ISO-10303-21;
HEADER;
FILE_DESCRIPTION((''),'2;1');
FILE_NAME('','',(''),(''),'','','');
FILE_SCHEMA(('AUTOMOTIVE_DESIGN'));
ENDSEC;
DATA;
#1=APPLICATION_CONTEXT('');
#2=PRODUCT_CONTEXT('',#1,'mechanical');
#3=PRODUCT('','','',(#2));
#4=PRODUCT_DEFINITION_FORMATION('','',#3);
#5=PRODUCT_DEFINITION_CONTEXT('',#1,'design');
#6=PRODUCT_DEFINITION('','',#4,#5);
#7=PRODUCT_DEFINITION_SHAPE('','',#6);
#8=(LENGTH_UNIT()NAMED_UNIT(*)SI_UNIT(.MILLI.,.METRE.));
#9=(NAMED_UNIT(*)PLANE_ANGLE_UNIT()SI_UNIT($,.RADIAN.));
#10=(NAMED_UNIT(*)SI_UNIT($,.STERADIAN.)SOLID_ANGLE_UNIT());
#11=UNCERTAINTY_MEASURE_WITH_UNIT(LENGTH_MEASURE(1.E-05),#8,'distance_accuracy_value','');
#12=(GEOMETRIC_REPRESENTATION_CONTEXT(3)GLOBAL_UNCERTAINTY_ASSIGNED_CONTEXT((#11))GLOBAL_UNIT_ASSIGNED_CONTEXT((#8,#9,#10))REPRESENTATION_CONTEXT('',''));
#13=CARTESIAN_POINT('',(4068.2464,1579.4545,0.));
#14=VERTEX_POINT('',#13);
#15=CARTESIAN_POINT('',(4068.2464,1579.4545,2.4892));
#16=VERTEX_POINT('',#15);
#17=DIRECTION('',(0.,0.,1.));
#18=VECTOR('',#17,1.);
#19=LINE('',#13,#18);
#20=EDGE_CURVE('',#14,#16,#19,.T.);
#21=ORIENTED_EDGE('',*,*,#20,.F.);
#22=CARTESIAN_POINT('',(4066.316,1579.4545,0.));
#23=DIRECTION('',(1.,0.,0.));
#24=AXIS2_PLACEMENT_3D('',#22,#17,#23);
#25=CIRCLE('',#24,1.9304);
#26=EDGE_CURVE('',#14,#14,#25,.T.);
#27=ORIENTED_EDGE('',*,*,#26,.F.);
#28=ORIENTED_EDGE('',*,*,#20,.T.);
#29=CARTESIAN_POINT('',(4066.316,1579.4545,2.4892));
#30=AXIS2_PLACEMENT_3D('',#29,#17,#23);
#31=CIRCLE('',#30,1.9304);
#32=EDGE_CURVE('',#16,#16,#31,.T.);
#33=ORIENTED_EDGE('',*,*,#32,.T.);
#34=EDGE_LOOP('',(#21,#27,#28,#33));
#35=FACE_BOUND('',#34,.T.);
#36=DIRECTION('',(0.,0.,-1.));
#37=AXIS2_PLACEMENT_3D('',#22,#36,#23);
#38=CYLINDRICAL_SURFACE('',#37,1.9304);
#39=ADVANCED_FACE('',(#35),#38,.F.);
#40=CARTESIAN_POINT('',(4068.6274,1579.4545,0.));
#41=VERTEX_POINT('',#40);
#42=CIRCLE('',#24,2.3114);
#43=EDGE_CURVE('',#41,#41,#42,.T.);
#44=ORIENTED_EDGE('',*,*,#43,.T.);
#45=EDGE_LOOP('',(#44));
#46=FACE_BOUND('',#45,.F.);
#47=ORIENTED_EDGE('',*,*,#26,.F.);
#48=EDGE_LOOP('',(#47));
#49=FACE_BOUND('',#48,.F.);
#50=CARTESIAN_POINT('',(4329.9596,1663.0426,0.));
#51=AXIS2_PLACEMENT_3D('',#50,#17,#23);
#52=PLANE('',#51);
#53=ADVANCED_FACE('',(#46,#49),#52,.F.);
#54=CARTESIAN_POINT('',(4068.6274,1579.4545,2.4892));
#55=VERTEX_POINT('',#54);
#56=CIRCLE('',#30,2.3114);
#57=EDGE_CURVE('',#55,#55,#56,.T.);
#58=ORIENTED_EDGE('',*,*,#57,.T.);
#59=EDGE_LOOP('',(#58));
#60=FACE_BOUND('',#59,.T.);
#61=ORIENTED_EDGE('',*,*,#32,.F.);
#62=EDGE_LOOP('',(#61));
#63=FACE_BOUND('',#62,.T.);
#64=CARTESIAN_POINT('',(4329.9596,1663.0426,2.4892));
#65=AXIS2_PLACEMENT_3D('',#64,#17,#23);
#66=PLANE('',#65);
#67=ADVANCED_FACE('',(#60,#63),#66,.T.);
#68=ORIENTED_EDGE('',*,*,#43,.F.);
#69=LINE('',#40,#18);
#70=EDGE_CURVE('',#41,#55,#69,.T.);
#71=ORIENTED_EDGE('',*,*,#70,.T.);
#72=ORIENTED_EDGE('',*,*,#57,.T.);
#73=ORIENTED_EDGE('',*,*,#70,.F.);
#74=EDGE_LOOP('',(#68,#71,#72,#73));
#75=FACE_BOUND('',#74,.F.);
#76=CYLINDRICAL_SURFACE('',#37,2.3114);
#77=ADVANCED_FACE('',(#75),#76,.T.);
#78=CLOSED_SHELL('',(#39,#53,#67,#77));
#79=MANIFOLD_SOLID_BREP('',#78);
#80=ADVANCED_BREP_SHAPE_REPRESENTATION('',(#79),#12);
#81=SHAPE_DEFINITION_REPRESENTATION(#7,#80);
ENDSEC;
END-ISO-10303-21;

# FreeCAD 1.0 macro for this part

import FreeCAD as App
import Part
import Sketcher
from FreeCAD import Vector
Q = App.Units.Quantity

doc = App.newDocument("Part")
body = doc.addObject("PartDesign::Body", "Body")

sketch1 = body.newObject("Sketcher::SketchObject", "Sketch")
sketch1.AttachmentSupport = (doc.getObject("XY_Plane"), [""])
sketch1.MapMode = "FlatFace"
sketch1.addGeometry(Part.Circle(Vector(4066.3, 1579.5, 0), Vector(0, 0, 1), 2.3), False)
sketch1.addGeometry(Part.Circle(Vector(4066.3, 1579.5, 0), Vector(0, 0, 1), 1.9), False)
sketch1.addConstraint(Sketcher.Constraint("Coincident", 1, 3, 0, 3))
sketch1.addConstraint(Sketcher.Constraint("Diameter", 0, Q("0.182 in")))
sketch1.addConstraint(Sketcher.Constraint("Diameter", 1, Q("0.152 in")))
sketch1.addConstraint(Sketcher.Constraint("DistanceX", -1, 1, 0, 3, Q("4066.316 mm")))
sketch1.addConstraint(Sketcher.Constraint("DistanceY", -1, 1, 0, 3, Q("1579.4545 mm")))
pad1 = body.newObject("PartDesign::Pad", "Pad")
pad1.Profile = sketch1
pad1.Length = Q("0.098 in")

doc.recompute()
